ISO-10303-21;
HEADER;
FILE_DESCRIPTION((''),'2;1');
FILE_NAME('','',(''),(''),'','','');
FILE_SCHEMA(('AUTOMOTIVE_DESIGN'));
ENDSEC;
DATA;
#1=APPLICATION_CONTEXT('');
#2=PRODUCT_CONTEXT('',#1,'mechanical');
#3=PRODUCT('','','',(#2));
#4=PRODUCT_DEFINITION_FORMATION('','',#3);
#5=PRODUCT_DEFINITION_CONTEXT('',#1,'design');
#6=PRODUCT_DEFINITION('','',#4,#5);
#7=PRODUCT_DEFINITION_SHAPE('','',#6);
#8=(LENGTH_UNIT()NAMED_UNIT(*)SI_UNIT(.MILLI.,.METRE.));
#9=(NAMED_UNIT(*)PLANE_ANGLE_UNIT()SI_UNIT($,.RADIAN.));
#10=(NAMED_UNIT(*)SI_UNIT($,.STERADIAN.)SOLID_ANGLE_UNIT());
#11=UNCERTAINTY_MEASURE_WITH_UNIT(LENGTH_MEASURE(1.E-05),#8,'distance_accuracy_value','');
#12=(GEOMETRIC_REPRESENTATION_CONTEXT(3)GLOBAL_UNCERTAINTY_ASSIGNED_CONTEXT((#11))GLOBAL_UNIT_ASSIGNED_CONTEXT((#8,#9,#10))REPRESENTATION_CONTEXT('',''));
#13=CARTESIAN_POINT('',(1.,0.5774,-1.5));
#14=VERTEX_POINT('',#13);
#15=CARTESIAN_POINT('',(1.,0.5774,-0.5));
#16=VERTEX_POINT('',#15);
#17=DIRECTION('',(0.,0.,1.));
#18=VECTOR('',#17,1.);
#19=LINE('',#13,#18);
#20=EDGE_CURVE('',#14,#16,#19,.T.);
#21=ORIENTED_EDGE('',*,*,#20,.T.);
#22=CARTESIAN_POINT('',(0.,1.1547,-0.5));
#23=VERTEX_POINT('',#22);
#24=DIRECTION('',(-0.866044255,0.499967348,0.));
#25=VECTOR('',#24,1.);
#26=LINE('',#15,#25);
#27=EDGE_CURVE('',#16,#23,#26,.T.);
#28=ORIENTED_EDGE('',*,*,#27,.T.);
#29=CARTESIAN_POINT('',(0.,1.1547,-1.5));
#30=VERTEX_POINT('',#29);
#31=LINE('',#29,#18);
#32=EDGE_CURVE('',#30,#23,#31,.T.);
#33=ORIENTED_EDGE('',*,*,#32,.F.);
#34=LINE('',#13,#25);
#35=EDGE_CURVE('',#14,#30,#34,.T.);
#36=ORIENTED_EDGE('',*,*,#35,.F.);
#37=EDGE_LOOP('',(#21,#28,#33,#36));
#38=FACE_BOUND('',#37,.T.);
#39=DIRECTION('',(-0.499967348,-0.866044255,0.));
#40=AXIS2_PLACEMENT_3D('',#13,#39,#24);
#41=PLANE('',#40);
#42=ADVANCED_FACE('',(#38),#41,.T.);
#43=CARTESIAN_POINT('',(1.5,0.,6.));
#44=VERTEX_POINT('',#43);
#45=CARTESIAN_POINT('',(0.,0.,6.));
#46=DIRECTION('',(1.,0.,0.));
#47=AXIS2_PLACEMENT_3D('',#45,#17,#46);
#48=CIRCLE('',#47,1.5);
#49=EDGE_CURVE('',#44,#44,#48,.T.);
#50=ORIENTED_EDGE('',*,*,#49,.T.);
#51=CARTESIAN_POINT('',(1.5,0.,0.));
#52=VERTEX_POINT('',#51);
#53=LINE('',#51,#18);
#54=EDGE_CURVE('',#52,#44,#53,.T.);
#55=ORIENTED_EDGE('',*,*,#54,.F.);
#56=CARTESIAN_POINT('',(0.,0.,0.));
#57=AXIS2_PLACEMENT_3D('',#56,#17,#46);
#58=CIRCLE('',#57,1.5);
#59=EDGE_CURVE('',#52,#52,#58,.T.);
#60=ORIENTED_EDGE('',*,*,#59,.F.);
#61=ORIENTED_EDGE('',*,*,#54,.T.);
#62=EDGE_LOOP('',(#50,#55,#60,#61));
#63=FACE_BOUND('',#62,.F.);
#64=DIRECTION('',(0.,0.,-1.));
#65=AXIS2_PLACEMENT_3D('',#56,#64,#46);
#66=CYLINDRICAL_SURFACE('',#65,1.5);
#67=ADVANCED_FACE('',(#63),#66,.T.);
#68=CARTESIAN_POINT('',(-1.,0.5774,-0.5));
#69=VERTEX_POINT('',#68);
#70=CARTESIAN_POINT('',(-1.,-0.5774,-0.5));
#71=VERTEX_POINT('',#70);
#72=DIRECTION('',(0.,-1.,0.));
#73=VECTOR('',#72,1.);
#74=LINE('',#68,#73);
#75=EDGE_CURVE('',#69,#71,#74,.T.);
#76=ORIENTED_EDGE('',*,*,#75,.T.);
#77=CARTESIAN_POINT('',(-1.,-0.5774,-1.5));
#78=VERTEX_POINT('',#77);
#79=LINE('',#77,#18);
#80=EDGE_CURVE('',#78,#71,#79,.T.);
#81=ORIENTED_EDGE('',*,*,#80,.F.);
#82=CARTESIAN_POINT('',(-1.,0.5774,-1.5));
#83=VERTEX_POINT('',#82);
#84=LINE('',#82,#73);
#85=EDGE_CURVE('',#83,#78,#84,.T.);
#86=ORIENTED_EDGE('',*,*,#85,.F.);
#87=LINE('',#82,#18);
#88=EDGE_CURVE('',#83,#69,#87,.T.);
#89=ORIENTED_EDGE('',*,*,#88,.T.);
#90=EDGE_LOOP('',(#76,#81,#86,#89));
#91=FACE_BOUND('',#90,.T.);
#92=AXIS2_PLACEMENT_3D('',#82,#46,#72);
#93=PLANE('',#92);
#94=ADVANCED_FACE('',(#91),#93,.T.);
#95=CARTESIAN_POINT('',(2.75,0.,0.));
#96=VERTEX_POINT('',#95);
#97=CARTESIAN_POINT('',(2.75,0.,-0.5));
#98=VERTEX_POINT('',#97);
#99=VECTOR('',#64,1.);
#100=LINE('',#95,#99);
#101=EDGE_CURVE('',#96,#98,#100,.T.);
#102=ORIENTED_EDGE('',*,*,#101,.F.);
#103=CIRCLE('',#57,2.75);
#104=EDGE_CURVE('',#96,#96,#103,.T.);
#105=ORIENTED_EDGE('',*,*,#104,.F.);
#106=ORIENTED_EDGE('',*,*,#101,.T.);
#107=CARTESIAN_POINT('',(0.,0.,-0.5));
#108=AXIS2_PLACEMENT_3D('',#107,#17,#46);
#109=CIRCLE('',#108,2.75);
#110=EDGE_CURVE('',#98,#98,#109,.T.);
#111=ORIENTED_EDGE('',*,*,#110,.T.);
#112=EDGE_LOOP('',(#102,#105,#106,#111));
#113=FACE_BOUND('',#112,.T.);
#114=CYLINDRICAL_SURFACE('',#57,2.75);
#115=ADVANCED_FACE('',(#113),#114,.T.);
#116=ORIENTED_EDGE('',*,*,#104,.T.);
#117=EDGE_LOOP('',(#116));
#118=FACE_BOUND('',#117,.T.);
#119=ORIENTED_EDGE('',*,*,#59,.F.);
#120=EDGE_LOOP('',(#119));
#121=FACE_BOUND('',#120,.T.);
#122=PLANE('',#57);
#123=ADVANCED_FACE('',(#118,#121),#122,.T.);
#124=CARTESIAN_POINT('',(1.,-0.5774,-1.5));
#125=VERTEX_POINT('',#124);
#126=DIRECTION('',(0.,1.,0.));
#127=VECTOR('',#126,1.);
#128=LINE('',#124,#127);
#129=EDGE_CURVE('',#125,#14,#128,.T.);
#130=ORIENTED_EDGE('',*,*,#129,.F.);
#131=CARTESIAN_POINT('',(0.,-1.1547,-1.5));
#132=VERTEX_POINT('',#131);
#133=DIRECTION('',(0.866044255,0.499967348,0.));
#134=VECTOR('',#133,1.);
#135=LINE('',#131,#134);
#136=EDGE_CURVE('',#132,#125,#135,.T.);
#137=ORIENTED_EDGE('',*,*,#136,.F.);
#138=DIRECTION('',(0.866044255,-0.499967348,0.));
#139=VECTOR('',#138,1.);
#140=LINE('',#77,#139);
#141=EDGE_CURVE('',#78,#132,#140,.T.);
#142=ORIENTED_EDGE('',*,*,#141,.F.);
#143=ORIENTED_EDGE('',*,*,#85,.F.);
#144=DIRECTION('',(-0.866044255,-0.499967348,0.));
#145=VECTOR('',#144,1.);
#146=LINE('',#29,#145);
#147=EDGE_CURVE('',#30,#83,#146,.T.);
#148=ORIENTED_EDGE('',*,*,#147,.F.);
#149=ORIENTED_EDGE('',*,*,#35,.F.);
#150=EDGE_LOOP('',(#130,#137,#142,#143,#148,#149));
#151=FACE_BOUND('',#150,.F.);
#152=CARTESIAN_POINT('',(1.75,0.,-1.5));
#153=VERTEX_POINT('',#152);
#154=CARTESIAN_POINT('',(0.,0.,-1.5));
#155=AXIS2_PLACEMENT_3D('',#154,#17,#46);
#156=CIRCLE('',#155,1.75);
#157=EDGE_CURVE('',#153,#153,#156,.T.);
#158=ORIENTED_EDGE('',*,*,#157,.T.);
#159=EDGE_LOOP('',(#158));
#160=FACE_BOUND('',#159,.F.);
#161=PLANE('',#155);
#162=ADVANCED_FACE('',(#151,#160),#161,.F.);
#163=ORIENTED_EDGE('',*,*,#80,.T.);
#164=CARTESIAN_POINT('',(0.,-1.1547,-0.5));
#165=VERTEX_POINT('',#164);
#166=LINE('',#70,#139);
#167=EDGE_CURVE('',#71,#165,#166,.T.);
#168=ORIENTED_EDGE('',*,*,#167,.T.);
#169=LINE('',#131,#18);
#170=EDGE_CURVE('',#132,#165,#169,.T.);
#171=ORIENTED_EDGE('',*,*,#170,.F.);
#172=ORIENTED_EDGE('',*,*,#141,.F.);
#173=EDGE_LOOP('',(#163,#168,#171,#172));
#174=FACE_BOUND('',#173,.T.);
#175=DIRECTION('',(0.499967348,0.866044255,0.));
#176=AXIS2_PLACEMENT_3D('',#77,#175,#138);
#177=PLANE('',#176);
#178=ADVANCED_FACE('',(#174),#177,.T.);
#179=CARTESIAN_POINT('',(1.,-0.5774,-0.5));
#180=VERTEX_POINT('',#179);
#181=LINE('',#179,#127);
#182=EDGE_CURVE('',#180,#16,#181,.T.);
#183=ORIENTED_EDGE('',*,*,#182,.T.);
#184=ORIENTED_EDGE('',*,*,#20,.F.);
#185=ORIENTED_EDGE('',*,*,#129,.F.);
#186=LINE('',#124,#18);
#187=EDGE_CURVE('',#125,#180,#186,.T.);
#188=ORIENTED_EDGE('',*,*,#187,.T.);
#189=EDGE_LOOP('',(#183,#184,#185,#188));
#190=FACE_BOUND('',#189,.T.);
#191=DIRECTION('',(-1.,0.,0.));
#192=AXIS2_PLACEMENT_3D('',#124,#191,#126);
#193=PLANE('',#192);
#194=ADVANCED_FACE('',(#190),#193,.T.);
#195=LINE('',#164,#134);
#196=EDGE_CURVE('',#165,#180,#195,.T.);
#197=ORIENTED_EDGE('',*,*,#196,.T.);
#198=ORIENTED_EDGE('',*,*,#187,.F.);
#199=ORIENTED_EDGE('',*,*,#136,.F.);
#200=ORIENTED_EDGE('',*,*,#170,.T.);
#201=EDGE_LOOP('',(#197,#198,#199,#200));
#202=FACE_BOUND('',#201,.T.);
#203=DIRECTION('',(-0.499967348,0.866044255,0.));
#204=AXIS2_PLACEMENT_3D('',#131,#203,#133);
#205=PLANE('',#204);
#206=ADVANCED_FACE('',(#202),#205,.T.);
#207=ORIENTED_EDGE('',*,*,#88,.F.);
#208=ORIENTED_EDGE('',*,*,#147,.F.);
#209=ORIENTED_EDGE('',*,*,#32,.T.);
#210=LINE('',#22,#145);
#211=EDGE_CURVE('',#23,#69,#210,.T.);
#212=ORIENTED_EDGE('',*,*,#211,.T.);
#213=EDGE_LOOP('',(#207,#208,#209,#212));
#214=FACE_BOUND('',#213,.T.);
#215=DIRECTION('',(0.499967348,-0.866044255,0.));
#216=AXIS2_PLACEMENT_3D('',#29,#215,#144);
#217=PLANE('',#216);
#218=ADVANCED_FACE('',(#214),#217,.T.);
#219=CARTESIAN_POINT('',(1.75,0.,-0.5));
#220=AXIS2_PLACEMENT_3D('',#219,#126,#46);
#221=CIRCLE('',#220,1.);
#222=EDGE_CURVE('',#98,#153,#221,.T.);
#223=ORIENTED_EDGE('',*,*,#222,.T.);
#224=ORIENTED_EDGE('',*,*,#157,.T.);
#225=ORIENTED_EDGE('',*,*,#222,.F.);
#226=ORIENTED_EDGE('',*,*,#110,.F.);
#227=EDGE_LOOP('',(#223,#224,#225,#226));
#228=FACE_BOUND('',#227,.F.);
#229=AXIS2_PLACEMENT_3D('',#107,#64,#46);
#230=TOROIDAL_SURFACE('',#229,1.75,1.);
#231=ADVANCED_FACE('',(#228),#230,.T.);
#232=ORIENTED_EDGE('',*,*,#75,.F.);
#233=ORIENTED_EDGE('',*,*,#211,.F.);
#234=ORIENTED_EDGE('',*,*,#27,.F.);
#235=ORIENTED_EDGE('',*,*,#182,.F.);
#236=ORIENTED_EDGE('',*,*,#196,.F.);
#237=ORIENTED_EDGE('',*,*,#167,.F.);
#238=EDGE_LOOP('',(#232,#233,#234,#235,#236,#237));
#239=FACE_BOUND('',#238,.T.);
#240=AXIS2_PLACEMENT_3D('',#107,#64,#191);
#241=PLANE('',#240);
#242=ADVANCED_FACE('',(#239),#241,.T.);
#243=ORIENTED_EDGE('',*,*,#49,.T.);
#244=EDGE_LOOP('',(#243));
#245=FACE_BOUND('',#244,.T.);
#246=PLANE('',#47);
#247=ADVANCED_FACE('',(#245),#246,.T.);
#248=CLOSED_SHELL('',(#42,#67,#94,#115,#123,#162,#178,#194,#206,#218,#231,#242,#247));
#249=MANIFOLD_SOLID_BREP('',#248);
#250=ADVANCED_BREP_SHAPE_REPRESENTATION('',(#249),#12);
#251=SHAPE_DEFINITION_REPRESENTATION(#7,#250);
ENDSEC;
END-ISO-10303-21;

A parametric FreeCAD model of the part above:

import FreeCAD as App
import Part
import Sketcher
Q = App.Units.Quantity


def edges_at(feature, points):
    """Names of the edges that pass closest to the given points."""
    edges = feature.Shape.Edges
    near = lambda p: min(range(len(edges)), key=lambda i: edges[i].distToShape(Part.Vertex(*p))[0])
    return sorted({f"Edge{near(p) + 1}" for p in points})


def add_polygon(sketch, points):
    """Adds a closed chain of lines whose ends are joined by coincident constraints."""
    first, n = sketch.GeometryCount, len(points)
    for a, b in zip(points, points[1:] + points[:1]):
        sketch.addGeometry(Part.LineSegment(App.Vector(*a, 0), App.Vector(*b, 0)), False)
    for i in range(n):
        sketch.addConstraint(Sketcher.Constraint("Coincident", first + i, 2, first + (i + 1) % n, 1))

doc = App.newDocument("Part")
body = doc.addObject("PartDesign::Body", "Body")

# Sketch on XY plane
sketch1 = doc.addObject("Sketcher::SketchObject", "Sketch")
body.addObject(sketch1)
sketch1.AttachmentSupport = (doc.XY_Plane, [""])
sketch1.MapMode = "FlatFace"
sketch1.addGeometry(Part.Circle(App.Vector(0, 0, 0), App.Vector(0, 0, 1), 1.5), False)
sketch1.addConstraint([
    Sketcher.Constraint("Coincident", 0, 3, -1, 1),
    Sketcher.Constraint("Diameter", 0, Q("3 mm")),
])
pad1 = doc.addObject("PartDesign::Pad", "Pad")
body.addObject(pad1)
pad1.Profile = sketch1
pad1.Length = 6

# Sketch on XY plane
sketch2 = doc.addObject("Sketcher::SketchObject", "Sketch001")
body.addObject(sketch2)
sketch2.AttachmentSupport = (doc.XY_Plane, [""])
sketch2.MapMode = "FlatFace"
sketch2.addGeometry(Part.Circle(App.Vector(0, 0, 0), App.Vector(0, 0, 1), 2.8), False)
sketch2.addConstraint([
    Sketcher.Constraint("Coincident", 0, 3, -1, 1),
    Sketcher.Constraint("Diameter", 0, Q("5.5 mm")),
])
pad2 = doc.addObject("PartDesign::Pad", "Pad001")
body.addObject(pad2)
pad2.Profile = sketch2
pad2.Length = 1.5
pad2.Reversed = True

# Sketch on XY plane
sketch3 = doc.addObject("Sketcher::SketchObject", "Sketch002")
body.addObject(sketch3)
sketch3.AttachmentSupport = (doc.XY_Plane, [""])
sketch3.MapMode = "FlatFace"
sketch3.AttachmentOffset = App.Placement(App.Vector(0, 0, -1.5), App.Rotation())
add_polygon(sketch3, [(-1, 0.6), (0, 1.2), (1, 0.6), (1, -0.6), (0, -1.2), (-1, -0.6)])  # lines 0-5
sketch3.addConstraint([
    Sketcher.Constraint("Vertical", 2),
    Sketcher.Constraint("Vertical", 5),
    Sketcher.Constraint("Symmetric", 0, 2, 3, 2, -1, 1),
    Sketcher.Constraint("Symmetric", 1, 2, 4, 2, -1, 1),
    Sketcher.Constraint("PointOnObject", 0, 2, -2),
    Sketcher.Constraint("Parallel", 0, 3),
    Sketcher.Constraint("Horizontal", 2, 2, 4, 2),
    Sketcher.Constraint("DistanceX", 4, 2, 2, 2, Q("2 mm")),
    Sketcher.Constraint("DistanceY", 2, 2, 2, 1, Q("1.1548 mm")),
    Sketcher.Constraint("DistanceY", 2, 2, 0, 2, Q("1.732 mm")),
])
pocket1 = doc.addObject("PartDesign::Pocket", "Pocket")
body.addObject(pocket1)
pocket1.Profile = sketch3
pocket1.Length = 1
pocket1.Reversed = True
doc.recompute()

fillet = doc.addObject("PartDesign::Fillet", "Fillet")
body.addObject(fillet)
fillet.Base = (pocket1, edges_at(pocket1, [(-2.75, 0, -1.5)]))
fillet.Radius = 1

doc.recompute()
